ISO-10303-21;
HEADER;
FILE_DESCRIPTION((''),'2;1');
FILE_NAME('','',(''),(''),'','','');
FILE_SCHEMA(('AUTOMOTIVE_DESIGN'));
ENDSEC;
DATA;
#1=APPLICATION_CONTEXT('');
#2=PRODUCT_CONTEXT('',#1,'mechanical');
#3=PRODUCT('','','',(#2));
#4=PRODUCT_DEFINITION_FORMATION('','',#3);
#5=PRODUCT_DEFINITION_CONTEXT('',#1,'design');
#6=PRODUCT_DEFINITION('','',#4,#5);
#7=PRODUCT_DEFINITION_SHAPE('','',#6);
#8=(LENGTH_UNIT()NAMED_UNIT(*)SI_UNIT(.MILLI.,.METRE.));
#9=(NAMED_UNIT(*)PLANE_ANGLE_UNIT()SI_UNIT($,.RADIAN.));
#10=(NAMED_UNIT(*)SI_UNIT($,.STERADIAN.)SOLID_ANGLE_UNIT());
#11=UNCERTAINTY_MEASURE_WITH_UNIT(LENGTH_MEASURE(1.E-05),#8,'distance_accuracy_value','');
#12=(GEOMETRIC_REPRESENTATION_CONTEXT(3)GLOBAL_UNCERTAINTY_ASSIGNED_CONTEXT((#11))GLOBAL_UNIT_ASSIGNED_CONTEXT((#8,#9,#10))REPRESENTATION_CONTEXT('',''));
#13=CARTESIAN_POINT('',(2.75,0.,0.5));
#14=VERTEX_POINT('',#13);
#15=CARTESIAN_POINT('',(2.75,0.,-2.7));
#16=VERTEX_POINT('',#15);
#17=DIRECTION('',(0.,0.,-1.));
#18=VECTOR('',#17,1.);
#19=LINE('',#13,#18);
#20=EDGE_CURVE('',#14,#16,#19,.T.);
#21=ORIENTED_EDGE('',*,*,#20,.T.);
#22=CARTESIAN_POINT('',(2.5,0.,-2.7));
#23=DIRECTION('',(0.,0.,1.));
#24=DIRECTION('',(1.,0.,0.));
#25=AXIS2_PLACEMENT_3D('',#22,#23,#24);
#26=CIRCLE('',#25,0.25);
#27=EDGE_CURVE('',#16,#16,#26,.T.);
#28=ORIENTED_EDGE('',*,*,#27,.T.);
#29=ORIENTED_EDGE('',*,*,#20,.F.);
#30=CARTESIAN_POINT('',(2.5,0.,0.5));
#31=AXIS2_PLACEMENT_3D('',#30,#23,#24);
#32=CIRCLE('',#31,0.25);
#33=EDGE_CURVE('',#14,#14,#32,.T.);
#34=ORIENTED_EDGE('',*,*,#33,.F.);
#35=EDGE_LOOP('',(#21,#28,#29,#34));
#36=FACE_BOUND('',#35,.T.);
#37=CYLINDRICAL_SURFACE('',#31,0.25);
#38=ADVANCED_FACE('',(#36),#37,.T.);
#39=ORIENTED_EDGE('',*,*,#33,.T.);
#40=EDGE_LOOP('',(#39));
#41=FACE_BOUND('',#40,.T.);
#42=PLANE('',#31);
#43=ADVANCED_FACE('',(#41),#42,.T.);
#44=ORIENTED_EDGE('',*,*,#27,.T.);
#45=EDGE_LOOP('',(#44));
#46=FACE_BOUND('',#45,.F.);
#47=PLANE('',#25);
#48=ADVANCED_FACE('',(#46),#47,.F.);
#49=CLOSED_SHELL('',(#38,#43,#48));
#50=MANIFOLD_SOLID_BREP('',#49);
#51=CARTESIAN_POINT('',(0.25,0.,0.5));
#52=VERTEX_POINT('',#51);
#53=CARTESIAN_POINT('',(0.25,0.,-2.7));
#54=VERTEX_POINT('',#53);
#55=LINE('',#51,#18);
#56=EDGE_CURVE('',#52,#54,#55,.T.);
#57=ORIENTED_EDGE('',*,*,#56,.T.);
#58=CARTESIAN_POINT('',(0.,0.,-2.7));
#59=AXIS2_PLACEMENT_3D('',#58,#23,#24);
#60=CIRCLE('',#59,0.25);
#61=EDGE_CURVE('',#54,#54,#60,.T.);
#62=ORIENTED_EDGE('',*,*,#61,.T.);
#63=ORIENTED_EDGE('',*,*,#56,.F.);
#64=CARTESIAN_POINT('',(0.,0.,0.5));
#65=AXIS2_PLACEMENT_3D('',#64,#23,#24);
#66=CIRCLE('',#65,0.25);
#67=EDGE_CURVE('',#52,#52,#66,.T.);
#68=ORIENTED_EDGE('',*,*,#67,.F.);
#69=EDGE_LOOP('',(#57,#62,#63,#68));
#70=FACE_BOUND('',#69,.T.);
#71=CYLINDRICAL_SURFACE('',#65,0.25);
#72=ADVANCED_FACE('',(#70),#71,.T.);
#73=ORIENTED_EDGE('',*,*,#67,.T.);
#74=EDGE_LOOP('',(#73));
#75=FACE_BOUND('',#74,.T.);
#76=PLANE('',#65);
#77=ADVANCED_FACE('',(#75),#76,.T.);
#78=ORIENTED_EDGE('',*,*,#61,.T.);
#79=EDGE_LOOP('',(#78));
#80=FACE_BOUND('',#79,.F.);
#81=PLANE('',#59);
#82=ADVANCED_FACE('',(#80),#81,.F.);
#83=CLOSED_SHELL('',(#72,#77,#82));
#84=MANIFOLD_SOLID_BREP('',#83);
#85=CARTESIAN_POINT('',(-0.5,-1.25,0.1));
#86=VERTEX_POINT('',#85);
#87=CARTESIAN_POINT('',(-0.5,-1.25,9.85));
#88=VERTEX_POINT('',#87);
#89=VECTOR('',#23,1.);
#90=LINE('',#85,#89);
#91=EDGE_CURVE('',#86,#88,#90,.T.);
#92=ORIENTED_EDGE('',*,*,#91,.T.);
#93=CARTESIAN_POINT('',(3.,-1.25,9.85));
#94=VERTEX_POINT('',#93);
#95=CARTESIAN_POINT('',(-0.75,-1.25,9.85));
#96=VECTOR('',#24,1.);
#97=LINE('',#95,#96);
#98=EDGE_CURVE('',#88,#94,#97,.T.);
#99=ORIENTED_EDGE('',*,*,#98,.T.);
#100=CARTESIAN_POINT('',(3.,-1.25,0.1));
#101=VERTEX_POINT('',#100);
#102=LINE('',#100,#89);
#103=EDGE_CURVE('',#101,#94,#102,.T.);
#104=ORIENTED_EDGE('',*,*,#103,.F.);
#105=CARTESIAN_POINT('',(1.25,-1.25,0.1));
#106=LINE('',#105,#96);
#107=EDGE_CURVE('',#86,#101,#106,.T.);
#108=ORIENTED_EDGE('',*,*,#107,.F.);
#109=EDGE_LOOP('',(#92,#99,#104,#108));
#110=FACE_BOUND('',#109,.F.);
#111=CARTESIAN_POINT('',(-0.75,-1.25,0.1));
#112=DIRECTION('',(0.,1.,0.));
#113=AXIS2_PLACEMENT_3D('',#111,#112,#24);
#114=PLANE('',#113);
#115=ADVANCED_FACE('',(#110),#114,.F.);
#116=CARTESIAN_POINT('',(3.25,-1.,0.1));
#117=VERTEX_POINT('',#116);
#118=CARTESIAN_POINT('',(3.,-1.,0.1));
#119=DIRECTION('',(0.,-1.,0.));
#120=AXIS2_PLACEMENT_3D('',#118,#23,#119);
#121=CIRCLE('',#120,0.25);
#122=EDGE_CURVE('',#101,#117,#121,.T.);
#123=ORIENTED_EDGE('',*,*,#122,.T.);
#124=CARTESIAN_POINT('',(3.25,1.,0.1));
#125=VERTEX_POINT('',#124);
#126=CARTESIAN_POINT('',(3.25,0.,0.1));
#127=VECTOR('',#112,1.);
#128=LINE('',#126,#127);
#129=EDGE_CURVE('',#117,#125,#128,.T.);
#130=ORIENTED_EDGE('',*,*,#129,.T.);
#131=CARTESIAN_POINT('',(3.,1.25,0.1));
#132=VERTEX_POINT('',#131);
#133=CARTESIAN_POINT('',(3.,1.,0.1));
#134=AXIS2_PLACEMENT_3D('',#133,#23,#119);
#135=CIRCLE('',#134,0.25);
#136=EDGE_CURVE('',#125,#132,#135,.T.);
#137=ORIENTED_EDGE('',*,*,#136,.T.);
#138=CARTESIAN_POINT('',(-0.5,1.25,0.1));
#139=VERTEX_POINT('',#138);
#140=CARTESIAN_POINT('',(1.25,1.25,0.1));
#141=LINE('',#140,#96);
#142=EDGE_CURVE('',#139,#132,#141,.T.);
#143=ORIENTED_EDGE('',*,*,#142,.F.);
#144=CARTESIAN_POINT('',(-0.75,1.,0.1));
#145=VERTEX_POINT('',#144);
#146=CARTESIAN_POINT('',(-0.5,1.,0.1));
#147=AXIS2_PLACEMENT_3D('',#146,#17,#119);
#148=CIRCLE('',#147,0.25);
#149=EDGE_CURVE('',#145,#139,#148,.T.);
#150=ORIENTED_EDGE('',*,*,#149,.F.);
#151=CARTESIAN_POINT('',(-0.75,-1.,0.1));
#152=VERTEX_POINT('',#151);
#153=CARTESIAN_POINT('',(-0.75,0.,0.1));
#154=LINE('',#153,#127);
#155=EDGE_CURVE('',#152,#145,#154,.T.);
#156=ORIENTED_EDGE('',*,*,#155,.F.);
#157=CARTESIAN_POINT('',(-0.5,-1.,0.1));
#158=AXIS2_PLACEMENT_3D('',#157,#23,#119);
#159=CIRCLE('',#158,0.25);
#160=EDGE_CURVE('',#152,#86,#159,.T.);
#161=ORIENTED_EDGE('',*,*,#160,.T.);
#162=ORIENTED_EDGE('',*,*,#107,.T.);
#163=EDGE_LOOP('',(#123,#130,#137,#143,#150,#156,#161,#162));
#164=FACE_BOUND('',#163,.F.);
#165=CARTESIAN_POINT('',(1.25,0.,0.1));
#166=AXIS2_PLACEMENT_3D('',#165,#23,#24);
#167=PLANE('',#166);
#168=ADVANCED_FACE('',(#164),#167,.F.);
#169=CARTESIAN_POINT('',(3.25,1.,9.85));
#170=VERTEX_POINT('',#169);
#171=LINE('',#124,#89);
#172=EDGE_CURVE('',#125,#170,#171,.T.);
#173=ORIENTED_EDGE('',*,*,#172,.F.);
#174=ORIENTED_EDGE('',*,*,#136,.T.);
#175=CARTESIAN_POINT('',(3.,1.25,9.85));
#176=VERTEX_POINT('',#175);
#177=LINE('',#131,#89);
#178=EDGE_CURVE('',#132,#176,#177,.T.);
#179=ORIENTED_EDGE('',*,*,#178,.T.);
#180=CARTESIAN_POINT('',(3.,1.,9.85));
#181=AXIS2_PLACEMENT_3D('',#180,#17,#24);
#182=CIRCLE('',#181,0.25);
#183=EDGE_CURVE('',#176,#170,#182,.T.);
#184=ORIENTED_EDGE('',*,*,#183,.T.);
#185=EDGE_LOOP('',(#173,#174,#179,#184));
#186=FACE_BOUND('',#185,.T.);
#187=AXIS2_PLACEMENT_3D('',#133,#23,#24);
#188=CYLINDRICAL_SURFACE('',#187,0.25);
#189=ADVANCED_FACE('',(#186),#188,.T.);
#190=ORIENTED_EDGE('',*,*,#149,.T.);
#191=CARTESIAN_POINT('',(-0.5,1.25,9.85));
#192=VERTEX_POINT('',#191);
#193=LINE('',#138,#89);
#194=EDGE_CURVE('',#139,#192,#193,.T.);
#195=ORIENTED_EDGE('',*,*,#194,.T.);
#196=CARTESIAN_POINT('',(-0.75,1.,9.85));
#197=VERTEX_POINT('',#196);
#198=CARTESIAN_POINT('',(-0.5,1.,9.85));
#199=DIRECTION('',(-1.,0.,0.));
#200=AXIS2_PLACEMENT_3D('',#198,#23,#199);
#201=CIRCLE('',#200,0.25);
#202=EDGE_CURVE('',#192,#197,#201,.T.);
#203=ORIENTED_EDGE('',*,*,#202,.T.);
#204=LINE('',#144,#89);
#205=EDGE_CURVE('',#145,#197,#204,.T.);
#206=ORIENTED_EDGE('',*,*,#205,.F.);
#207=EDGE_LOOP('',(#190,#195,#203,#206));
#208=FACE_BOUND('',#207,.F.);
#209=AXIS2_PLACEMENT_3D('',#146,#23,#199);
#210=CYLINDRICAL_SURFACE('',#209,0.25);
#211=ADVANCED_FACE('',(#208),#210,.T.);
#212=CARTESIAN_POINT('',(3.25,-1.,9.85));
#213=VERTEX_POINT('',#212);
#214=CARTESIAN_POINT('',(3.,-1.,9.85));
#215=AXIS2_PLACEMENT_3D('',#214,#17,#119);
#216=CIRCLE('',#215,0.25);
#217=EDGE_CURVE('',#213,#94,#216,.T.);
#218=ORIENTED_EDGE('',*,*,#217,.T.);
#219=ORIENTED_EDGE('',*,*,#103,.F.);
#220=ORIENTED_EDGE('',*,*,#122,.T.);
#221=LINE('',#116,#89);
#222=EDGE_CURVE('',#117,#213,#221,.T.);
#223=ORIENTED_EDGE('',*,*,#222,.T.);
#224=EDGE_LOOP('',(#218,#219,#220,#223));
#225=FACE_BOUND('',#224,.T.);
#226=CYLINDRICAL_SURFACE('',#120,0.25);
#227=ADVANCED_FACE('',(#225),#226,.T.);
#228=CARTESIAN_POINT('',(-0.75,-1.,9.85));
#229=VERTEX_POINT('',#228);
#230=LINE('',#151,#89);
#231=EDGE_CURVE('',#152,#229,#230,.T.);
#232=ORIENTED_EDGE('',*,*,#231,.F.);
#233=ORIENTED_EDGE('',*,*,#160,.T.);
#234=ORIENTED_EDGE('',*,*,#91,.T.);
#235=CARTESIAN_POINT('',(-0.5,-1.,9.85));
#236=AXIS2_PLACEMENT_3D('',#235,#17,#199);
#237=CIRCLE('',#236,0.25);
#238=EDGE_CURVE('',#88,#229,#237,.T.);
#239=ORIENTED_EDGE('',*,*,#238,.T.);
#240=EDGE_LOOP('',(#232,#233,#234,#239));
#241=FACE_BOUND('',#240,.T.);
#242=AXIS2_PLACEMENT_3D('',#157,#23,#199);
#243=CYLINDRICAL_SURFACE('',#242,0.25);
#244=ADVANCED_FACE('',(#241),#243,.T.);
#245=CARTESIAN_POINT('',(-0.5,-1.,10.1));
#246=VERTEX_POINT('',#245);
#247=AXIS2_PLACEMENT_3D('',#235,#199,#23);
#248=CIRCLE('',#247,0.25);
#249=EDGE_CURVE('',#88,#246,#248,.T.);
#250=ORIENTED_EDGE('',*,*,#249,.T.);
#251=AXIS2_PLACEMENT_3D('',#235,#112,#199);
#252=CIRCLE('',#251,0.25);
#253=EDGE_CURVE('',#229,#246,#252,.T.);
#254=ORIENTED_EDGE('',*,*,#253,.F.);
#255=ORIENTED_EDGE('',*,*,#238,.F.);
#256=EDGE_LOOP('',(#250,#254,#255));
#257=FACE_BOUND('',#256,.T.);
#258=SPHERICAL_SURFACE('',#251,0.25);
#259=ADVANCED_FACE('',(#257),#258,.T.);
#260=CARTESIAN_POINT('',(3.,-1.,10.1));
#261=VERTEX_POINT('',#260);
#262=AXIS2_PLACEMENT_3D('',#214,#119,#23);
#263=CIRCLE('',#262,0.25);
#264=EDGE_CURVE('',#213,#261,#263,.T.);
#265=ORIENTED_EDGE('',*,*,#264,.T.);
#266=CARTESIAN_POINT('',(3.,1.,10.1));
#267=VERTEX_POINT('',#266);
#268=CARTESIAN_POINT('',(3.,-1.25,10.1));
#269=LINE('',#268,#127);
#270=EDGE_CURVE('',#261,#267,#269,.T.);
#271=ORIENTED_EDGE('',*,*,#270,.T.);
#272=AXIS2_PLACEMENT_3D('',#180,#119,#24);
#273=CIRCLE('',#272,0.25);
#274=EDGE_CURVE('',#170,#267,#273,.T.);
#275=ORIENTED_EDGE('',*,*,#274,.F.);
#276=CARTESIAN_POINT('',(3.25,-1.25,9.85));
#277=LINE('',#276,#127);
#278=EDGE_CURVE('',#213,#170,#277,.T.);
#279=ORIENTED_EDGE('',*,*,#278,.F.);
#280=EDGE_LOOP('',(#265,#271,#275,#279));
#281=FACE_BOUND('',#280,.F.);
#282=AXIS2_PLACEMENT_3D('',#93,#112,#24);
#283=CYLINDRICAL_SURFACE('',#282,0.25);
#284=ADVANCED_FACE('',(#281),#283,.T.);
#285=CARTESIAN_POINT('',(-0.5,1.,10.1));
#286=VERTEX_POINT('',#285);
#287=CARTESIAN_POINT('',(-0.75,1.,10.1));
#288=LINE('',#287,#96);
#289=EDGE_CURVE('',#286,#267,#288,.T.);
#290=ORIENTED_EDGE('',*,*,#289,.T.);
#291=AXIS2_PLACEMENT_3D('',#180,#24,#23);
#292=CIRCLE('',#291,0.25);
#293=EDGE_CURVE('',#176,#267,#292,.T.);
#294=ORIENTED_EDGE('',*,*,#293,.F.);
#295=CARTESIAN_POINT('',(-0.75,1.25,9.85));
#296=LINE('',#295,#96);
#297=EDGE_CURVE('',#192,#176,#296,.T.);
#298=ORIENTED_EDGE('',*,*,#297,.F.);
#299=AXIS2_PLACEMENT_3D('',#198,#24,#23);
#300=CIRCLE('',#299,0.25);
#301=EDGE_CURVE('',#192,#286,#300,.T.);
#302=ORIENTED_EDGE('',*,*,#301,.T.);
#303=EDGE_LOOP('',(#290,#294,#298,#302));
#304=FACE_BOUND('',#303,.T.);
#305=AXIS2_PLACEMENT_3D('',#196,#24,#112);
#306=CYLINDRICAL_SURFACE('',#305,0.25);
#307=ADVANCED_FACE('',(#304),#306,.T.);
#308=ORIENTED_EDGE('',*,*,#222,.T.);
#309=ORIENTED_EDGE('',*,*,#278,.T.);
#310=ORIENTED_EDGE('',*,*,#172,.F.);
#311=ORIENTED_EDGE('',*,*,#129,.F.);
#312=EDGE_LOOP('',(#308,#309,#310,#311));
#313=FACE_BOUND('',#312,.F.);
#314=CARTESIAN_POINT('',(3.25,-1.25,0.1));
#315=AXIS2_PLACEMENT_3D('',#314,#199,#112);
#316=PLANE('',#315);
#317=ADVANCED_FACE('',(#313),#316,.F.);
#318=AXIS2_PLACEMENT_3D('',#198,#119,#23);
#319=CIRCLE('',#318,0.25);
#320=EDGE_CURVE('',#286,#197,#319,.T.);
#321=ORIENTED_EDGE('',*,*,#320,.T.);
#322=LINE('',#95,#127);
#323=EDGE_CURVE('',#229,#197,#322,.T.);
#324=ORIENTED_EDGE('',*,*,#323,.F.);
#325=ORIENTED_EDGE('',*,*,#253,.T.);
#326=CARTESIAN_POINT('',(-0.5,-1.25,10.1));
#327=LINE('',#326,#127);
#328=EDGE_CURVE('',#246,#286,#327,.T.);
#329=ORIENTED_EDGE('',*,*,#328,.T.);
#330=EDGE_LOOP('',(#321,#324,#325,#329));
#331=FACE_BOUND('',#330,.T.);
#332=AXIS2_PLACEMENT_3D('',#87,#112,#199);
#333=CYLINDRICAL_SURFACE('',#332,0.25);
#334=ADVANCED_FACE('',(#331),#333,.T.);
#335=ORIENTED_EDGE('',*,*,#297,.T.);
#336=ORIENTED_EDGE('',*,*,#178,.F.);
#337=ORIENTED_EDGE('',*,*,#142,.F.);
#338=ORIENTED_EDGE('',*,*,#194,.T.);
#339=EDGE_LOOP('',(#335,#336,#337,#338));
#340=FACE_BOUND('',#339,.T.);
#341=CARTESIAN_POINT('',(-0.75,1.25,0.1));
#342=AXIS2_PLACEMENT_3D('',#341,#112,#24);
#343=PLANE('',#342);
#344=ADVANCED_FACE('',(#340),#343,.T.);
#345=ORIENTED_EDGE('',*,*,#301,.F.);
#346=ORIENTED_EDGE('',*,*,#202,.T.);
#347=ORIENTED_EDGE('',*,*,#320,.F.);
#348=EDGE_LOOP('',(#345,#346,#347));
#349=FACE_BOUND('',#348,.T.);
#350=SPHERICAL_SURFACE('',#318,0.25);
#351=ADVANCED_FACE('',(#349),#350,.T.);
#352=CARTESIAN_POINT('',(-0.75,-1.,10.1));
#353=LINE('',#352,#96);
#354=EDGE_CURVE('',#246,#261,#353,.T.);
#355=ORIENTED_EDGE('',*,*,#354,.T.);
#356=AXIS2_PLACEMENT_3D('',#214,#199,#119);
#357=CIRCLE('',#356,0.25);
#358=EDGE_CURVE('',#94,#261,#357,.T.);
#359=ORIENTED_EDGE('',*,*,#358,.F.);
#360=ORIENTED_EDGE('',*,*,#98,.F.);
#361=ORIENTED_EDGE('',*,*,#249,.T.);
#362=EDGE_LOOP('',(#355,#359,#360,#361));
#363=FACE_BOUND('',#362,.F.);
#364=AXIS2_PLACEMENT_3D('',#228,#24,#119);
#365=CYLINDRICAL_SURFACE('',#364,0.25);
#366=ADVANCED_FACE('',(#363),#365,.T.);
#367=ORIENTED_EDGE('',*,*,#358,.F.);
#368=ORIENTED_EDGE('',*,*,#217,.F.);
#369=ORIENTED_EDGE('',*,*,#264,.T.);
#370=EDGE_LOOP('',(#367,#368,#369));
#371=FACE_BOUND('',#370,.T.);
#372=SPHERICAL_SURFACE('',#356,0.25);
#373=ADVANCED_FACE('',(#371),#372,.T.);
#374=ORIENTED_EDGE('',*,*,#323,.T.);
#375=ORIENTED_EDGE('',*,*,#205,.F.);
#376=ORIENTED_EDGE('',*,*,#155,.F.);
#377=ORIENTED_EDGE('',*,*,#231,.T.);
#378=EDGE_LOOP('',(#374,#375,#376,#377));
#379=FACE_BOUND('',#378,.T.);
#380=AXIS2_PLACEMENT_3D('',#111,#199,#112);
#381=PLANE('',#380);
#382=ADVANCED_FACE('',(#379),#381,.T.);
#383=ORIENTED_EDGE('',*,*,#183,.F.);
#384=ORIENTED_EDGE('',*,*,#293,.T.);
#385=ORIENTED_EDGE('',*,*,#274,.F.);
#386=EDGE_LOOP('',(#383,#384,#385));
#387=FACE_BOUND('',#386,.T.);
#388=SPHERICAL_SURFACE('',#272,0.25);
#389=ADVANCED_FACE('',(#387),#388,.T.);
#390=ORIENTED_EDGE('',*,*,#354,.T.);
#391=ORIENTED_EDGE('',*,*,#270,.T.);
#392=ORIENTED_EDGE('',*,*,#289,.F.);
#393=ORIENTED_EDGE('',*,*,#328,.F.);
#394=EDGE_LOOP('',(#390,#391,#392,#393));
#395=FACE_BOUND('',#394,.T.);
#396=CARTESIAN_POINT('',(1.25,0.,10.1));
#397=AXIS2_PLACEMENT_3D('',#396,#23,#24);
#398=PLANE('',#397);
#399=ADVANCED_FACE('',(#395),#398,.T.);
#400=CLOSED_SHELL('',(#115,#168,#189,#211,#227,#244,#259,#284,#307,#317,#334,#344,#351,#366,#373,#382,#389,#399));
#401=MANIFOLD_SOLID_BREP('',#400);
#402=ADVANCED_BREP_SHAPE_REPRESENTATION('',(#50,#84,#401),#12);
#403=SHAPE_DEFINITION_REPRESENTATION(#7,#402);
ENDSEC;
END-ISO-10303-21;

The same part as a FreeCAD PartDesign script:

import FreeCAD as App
import Part
import Sketcher


def edges_at(feature, points):
    """Names of the edges that pass closest to the given points."""
    edges = feature.Shape.Edges
    near = lambda p: min(range(len(edges)), key=lambda i: edges[i].distToShape(Part.Vertex(*p))[0])
    return sorted({f"Edge{near(p) + 1}" for p in points})


def add_polygon(sketch, points):
    """Adds a closed chain of lines whose ends are joined by coincident constraints."""
    first, n = sketch.GeometryCount, len(points)
    for a, b in zip(points, points[1:] + points[:1]):
        sketch.addGeometry(Part.LineSegment(App.Vector(*a, 0), App.Vector(*b, 0)), False)
    for i in range(n):
        sketch.addConstraint(Sketcher.Constraint("Coincident", first + i, 2, first + (i + 1) % n, 1))

doc = App.newDocument("Part")
params = doc.addObject("Spreadsheet::Sheet", "Params")
for row, (alias, value) in enumerate([
    ("sketch1_width", "4 mm"),
    ("sketch1_height", "2.5 mm"),
    ("pad1_length", "10 mm"),
    ("fillet_radius", "0.25 mm"),
    ("sketch2_diameter", "0.5 mm"),
    ("pad2_length", "3.2 mm"),
], start=1):
    params.set(f"A{row}", alias)
    params.set(f"B{row}", "=" + value)
    params.setAlias(f"B{row}", alias)

body = doc.addObject("PartDesign::Body", "Body")

# Sketch on XY plane
sketch1 = body.newObject("Sketcher::SketchObject", "Sketch")
sketch1.AttachmentSupport = (doc.getObject("XY_Plane"), [""])
sketch1.MapMode = "FlatFace"
sketch1.AttachmentOffset = App.Placement(App.Vector(0, 0, 0.1), App.Rotation())
add_polygon(sketch1, [(-0.75, 1.25), (-0.75, -1.25), (3.25, -1.25), (3.25, 1.25)])  # lines 0-3
sketch1.addConstraint([
    Sketcher.Constraint("Vertical", 0),
    Sketcher.Constraint("Horizontal", 1),
    Sketcher.Constraint("Vertical", 2),
    Sketcher.Constraint("Horizontal", 3),
    Sketcher.Constraint("DistanceX", 1, 1, 1, 2, 4.0),
    Sketcher.Constraint("DistanceY", 0, 2, 0, 1, 2.5),
    Sketcher.Constraint("DistanceX", 0, 2, -1, 1, 0.75),
    Sketcher.Constraint("DistanceY", 0, 2, -1, 1, 1.25),
])
sketch1.setExpression("Constraints[8]", "Params.sketch1_width")
sketch1.setExpression("Constraints[9]", "Params.sketch1_height")
pad1 = body.newObject("PartDesign::Pad", "Pad")
pad1.Profile = sketch1
pad1.setExpression("Length", "Params.pad1_length")
doc.recompute()

fillet = body.newObject("PartDesign::Fillet", "Fillet")
fillet.Base = (pad1, edges_at(pad1, [
    (-0.75, 0, 10.1),
    (-0.75, -1.25, 5.1),
    (1.25, -1.25, 10.1),
    (3.25, -1.25, 5.1),
    (3.25, 0, 10.1),
    (3.25, 1.25, 5.1),
    (1.25, 1.25, 10.1),
    (-0.75, 1.25, 5.1),
]))
fillet.setExpression("Radius", "Params.fillet_radius")
body2 = doc.addObject("PartDesign::Body", "Body001")
body2.AllowCompound = True

# Sketch on XY plane
sketch2 = body2.newObject("Sketcher::SketchObject", "Sketch001")
sketch2.AttachmentSupport = (doc.getObject("XY_Plane001"), [""])
sketch2.MapMode = "FlatFace"
sketch2.AttachmentOffset = App.Placement(App.Vector(0, 0, 0.5), App.Rotation())
sketch2.addGeometry([
    Part.Circle(App.Vector(0, 0, 0), App.Vector(0, 0, 1), 0.25),
    Part.Circle(App.Vector(2.5, 0, 0), App.Vector(0, 0, 1), 0.25),
], False)
sketch2.addConstraint([
    Sketcher.Constraint("Coincident", 0, 3, -1, 1),
    Sketcher.Constraint("Equal", 0, 1),
    Sketcher.Constraint("PointOnObject", 1, 3, -1),
    Sketcher.Constraint("Diameter", 0, 0.5),
    Sketcher.Constraint("DistanceX", -1, 1, 1, 3, 2.5),
])
sketch2.setExpression("Constraints[3]", "Params.sketch2_diameter")
pad2 = body2.newObject("PartDesign::Pad", "Pad001")
pad2.Profile = sketch2
pad2.setExpression("Length", "Params.pad2_length")
pad2.Reversed = True

doc.recompute()
